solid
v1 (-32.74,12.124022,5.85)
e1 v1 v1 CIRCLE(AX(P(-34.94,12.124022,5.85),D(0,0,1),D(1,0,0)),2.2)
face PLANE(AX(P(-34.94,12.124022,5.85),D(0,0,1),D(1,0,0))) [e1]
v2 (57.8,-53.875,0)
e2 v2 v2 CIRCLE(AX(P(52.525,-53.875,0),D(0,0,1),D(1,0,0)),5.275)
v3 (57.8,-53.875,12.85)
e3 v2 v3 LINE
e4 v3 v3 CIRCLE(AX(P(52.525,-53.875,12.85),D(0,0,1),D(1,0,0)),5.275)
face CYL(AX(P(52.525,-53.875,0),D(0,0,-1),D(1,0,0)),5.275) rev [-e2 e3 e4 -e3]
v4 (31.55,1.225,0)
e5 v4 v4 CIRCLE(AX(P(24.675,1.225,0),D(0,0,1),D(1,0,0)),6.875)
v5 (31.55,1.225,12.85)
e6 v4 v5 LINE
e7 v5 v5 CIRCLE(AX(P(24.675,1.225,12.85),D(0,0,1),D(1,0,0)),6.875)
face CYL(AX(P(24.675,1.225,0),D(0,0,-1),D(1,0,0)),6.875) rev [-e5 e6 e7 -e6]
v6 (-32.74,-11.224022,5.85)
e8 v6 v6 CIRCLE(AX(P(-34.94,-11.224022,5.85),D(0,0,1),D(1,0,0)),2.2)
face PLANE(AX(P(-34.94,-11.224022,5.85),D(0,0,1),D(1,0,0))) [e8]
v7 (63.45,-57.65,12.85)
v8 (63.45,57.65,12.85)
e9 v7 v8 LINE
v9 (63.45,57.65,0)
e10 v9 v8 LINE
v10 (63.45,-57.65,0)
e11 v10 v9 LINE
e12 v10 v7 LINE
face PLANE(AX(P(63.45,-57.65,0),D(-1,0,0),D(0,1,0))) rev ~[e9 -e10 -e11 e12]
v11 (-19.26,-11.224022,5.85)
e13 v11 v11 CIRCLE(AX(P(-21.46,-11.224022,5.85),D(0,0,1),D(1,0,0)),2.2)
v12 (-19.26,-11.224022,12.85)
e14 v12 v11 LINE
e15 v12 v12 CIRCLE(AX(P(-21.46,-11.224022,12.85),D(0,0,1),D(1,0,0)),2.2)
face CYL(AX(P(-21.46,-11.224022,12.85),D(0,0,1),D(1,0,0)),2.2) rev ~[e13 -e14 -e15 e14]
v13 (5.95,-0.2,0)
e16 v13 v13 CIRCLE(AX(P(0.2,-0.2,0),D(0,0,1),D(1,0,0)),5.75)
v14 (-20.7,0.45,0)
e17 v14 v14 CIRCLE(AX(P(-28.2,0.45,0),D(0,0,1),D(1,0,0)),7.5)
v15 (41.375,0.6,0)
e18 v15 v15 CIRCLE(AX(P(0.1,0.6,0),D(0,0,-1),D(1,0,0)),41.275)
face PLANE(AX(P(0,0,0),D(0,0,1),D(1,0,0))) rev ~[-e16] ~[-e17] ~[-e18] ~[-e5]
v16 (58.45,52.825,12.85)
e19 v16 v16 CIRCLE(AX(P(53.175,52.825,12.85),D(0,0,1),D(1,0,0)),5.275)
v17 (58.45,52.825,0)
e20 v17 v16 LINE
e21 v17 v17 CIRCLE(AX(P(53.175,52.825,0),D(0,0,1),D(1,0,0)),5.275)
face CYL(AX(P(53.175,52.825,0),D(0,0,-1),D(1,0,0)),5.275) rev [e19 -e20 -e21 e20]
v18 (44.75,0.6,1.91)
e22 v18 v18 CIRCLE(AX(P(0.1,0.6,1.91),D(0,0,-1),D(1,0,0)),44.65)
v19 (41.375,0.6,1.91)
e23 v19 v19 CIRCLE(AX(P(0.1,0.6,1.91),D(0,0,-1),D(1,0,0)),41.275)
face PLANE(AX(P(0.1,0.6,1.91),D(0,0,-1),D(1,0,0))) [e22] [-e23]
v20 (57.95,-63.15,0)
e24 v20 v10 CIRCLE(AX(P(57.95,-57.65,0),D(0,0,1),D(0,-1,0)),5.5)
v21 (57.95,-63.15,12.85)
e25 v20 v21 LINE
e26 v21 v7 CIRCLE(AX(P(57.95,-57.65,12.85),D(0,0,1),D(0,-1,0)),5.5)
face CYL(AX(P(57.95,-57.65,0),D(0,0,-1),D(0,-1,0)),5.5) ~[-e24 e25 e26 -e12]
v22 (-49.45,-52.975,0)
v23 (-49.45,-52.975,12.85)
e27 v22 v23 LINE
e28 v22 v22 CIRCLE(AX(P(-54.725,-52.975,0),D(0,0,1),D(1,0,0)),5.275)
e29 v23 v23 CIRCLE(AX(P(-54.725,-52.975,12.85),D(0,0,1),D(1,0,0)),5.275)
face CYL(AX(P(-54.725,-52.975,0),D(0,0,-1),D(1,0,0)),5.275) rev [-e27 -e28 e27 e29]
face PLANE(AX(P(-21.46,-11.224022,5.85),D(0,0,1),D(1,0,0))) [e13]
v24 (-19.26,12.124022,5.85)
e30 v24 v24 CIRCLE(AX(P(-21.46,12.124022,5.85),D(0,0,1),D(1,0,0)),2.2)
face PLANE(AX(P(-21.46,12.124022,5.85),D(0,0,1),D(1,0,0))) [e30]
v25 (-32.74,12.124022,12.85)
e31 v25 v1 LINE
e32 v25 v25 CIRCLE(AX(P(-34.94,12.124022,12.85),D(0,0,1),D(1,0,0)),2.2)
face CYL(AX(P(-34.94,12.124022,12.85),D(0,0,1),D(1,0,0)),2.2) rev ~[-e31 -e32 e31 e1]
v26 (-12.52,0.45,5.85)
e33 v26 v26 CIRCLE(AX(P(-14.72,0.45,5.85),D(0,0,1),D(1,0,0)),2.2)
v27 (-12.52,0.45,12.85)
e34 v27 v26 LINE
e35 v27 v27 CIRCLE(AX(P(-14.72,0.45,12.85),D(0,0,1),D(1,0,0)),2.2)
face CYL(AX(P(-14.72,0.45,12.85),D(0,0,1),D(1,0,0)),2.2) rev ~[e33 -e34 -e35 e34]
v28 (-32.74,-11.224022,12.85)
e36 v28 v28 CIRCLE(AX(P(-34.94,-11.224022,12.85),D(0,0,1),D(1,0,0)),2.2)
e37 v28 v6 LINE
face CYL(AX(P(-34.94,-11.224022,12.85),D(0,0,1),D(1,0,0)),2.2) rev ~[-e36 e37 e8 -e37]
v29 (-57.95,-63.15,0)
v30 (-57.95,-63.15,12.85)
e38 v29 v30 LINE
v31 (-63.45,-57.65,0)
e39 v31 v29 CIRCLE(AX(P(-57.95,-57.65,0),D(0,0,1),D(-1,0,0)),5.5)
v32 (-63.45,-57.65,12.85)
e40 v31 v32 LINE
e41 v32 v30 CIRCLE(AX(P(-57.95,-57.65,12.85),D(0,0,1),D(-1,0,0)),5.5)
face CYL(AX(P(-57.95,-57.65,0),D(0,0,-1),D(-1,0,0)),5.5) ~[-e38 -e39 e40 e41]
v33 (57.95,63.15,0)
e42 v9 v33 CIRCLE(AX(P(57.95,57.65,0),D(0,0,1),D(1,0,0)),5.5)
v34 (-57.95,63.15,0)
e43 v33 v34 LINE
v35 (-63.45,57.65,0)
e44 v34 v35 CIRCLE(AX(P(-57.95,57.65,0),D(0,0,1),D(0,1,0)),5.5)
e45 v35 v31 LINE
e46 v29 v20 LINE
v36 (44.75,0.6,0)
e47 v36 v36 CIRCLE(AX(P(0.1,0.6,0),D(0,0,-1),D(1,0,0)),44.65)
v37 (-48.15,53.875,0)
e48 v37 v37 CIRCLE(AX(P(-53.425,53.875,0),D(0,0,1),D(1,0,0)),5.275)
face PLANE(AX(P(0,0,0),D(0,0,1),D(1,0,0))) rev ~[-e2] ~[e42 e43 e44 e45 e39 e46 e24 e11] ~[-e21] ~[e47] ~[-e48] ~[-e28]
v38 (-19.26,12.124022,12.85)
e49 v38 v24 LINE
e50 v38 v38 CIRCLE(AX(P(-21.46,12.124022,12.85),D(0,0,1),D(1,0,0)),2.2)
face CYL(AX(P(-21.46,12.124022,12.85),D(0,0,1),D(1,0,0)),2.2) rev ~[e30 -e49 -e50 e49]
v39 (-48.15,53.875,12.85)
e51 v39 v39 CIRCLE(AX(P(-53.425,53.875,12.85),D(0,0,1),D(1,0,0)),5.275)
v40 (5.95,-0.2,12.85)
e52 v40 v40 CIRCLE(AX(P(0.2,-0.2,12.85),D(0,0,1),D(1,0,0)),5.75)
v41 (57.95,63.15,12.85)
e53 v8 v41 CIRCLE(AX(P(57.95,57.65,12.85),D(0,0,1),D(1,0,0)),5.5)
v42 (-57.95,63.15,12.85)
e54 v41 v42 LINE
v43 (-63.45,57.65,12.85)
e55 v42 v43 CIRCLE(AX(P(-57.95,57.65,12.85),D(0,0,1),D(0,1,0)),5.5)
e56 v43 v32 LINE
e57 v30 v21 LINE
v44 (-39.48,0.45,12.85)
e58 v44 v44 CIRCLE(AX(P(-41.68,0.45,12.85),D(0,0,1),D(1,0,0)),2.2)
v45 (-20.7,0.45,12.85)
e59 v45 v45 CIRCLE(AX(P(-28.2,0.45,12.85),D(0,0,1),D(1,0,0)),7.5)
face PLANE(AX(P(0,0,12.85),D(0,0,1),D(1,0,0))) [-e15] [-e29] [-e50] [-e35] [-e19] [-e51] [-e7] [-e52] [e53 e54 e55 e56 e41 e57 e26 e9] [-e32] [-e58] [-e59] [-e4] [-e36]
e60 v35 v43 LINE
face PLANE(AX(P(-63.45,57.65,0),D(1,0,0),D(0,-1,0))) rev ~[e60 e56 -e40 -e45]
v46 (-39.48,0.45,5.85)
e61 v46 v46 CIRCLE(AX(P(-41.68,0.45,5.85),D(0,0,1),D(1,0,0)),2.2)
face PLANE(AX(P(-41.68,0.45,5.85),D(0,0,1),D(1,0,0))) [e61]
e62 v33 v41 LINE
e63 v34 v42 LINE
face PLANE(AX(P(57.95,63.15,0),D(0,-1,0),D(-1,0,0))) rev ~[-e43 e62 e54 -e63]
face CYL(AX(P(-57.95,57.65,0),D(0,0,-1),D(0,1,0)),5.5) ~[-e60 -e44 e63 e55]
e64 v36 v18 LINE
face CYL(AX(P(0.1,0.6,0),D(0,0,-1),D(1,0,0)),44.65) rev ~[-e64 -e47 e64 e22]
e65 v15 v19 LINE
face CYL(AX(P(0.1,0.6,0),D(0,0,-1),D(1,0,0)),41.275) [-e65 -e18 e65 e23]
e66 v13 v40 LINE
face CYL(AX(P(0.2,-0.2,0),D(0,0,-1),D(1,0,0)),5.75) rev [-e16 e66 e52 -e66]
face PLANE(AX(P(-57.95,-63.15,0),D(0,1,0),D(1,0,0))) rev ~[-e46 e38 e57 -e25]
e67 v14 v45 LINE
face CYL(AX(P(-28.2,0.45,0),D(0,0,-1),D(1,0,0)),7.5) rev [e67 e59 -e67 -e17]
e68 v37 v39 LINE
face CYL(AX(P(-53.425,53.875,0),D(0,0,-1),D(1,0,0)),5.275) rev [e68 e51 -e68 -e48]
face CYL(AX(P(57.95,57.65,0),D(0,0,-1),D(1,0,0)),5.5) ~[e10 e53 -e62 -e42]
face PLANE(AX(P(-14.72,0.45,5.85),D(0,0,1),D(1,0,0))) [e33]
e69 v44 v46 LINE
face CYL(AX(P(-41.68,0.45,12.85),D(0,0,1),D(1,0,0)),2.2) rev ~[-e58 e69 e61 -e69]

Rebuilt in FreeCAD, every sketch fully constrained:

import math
import FreeCAD as App
import Part
import Sketcher

V = App.Vector

doc = App.newDocument("Part")
body = doc.addObject("PartDesign::Body", "Body")

sketch1 = doc.addObject("Sketcher::SketchObject", "Sketch")
body.addObject(sketch1)
sketch1.AttachmentSupport = (doc.XY_Plane, [""])
sketch1.MapMode = "FlatFace"
sketch1.addGeometry(Part.ArcOfCircle(Part.Circle(V(57.95, 57.65, 0), V(0, 0, 1), 5.5), math.radians(0), math.radians(90)), False)
sketch1.addGeometry(Part.LineSegment(V(57.95, 63.15, 0), V(-57.95, 63.15, 0)), False)
sketch1.addGeometry(Part.ArcOfCircle(Part.Circle(V(-57.95, 57.65, 0), V(0, 0, 1), 5.5), math.radians(90), math.radians(180)), False)
sketch1.addGeometry(Part.LineSegment(V(-63.45, 57.65, 0), V(-63.45, -57.65, 0)), False)
sketch1.addGeometry(Part.ArcOfCircle(Part.Circle(V(-57.95, -57.65, 0), V(0, 0, 1), 5.5), math.radians(180), math.radians(270)), False)
sketch1.addGeometry(Part.LineSegment(V(-57.95, -63.15, 0), V(57.95, -63.15, 0)), False)
sketch1.addGeometry(Part.ArcOfCircle(Part.Circle(V(57.95, -57.65, 0), V(0, 0, 1), 5.5), math.radians(-90), math.radians(0)), False)
sketch1.addGeometry(Part.LineSegment(V(63.45, -57.65, 0), V(63.45, 57.65, 0)), False)
sketch1.addGeometry(Part.Circle(V(-54.725, -52.975, 0), V(0, 0, 1), 5.275), False)
sketch1.addGeometry(Part.Circle(V(52.525, -53.875, 0), V(0, 0, 1), 5.275), False)
sketch1.addGeometry(Part.Circle(V(0.2, -0.2, 0), V(0, 0, 1), 5.75), False)
sketch1.addGeometry(Part.Circle(V(-28.2, 0.45, 0), V(0, 0, 1), 7.5), False)
sketch1.addGeometry(Part.Circle(V(-53.425, 53.875, 0), V(0, 0, 1), 5.275), False)
sketch1.addGeometry(Part.Circle(V(24.675, 1.225, 0), V(0, 0, 1), 6.875), False)
sketch1.addGeometry(Part.Circle(V(53.175, 52.825, 0), V(0, 0, 1), 5.275), False)
sketch1.addConstraint(Sketcher.Constraint("Tangent", 0, 2, 1, 1))
sketch1.addConstraint(Sketcher.Constraint("Tangent", 1, 2, 2, 1))
sketch1.addConstraint(Sketcher.Constraint("Tangent", 2, 2, 3, 1))
sketch1.addConstraint(Sketcher.Constraint("Tangent", 3, 2, 4, 1))
sketch1.addConstraint(Sketcher.Constraint("Tangent", 4, 2, 5, 1))
sketch1.addConstraint(Sketcher.Constraint("Tangent", 5, 2, 6, 1))
sketch1.addConstraint(Sketcher.Constraint("Tangent", 6, 2, 7, 1))
sketch1.addConstraint(Sketcher.Constraint("Tangent", 7, 2, 0, 1))
sketch1.addConstraint(Sketcher.Constraint("Horizontal", 1))
sketch1.addConstraint(Sketcher.Constraint("Vertical", 3))
sketch1.addConstraint(Sketcher.Constraint("Horizontal", 5))
sketch1.addConstraint(Sketcher.Constraint("Vertical", 7))
sketch1.addConstraint(Sketcher.Constraint("Equal", 0, 2))
sketch1.addConstraint(Sketcher.Constraint("Equal", 2, 4))
sketch1.addConstraint(Sketcher.Constraint("Equal", 4, 6))
sketch1.addConstraint(Sketcher.Constraint("Equal", 8, 9))
sketch1.addConstraint(Sketcher.Constraint("Equal", 9, 12))
sketch1.addConstraint(Sketcher.Constraint("Equal", 12, 14))
sketch1.addConstraint(Sketcher.Constraint("Symmetric", 0, 3, 4, 3, -1, 1))
sketch1.addConstraint(Sketcher.Constraint("Diameter", 11, 15.0))
sketch1.addConstraint(Sketcher.Constraint("Diameter", 10, 11.5))
sketch1.addConstraint(Sketcher.Constraint("Radius", 0, 5.5))
sketch1.addConstraint(Sketcher.Constraint("Diameter", 8, 10.55))
sketch1.addConstraint(Sketcher.Constraint("Diameter", 13, 13.75))
sketch1.addConstraint(Sketcher.Constraint("DistanceX", 1, 2, 1, 1, 115.9))
sketch1.addConstraint(Sketcher.Constraint("DistanceY", 3, 2, 3, 1, 115.3))
sketch1.addConstraint(Sketcher.Constraint("DistanceX", -1, 1, 10, 3, 0.2))
sketch1.addConstraint(Sketcher.Constraint("DistanceY", 10, 3, -1, 1, 0.2))
sketch1.addConstraint(Sketcher.Constraint("DistanceX", 11, 3, -1, 1, 28.2))
sketch1.addConstraint(Sketcher.Constraint("DistanceY", 9, 3, 8, 3, 0.9))
sketch1.addConstraint(Sketcher.Constraint("DistanceY", 11, 3, 2, 3, 57.2))
sketch1.addConstraint(Sketcher.Constraint("DistanceX", 8, 3, 12, 3, 1.3))
sketch1.addConstraint(Sketcher.Constraint("DistanceY", 9, 3, 13, 3, 55.1))
sketch1.addConstraint(Sketcher.Constraint("DistanceX", 13, 3, 14, 3, 28.5))
sketch1.addConstraint(Sketcher.Constraint("DistanceY", 13, 3, 14, 3, 51.6))
sketch1.addConstraint(Sketcher.Constraint("DistanceX", 12, 3, 14, 3, 106.6))
sketch1.addConstraint(Sketcher.Constraint("DistanceX", 8, 3, 9, 3, 107.25))
sketch1.addConstraint(Sketcher.Constraint("DistanceY", 8, 3, 12, 3, 106.85))
sketch1.addConstraint(Sketcher.Constraint("DistanceX", 8, 3, -1, 1, 54.725))
sketch1.addConstraint(Sketcher.Constraint("DistanceY", 8, 3, -1, 1, 52.975))
pad1 = doc.addObject("PartDesign::Pad", "Pad")
body.addObject(pad1)
pad1.Profile = sketch1
pad1.Length = 12.85

sketch2 = doc.addObject("Sketcher::SketchObject", "Sketch001")
body.addObject(sketch2)
sketch2.AttachmentSupport = (doc.XY_Plane, [""])
sketch2.MapMode = "FlatFace"
sketch2.addGeometry(Part.Circle(V(0.1, 0.6, 0), V(0, 0, 1), 44.65), False)
sketch2.addGeometry(Part.Circle(V(0.1, 0.6, 0), V(0, 0, 1), 41.275), False)
sketch2.addConstraint(Sketcher.Constraint("Coincident", 1, 3, 0, 3))
sketch2.addConstraint(Sketcher.Constraint("Diameter", 0, 89.3))
sketch2.addConstraint(Sketcher.Constraint("Diameter", 1, 82.55))
sketch2.addConstraint(Sketcher.Constraint("DistanceX", -1, 1, 0, 3, 0.1))
sketch2.addConstraint(Sketcher.Constraint("DistanceY", -1, 1, 0, 3, 0.6))
pocket1 = doc.addObject("PartDesign::Pocket", "Pocket")
body.addObject(pocket1)
pocket1.Profile = sketch2
pocket1.Length = 1.91
pocket1.Reversed = True

sketch3 = doc.addObject("Sketcher::SketchObject", "Sketch002")
body.addObject(sketch3)
sketch3.AttachmentSupport = (doc.XY_Plane, [""])
sketch3.MapMode = "FlatFace"
sketch3.AttachmentOffset = App.Placement(V(0, 0, 12.85), App.Rotation())
sketch3.addGeometry(Part.Circle(V(-21.46, 12.124022, 0), V(0, 0, 1), 2.2), False)
sketch3.addGeometry(Part.Circle(V(-34.94, 12.124022, 0), V(0, 0, 1), 2.2), False)
sketch3.addGeometry(Part.Circle(V(-41.68, 0.45, 0), V(0, 0, 1), 2.2), False)
sketch3.addGeometry(Part.Circle(V(-34.94, -11.224022, 0), V(0, 0, 1), 2.2), False)
sketch3.addGeometry(Part.Circle(V(-21.46, -11.224022, 0), V(0, 0, 1), 2.2), False)
sketch3.addGeometry(Part.Circle(V(-14.72, 0.45, 0), V(0, 0, 1), 2.2), False)
sketch3.addConstraint(Sketcher.Constraint("Equal", 0, 1))
sketch3.addConstraint(Sketcher.Constraint("Equal", 1, 2))
sketch3.addConstraint(Sketcher.Constraint("Equal", 2, 3))
sketch3.addConstraint(Sketcher.Constraint("Equal", 3, 4))
sketch3.addConstraint(Sketcher.Constraint("Equal", 4, 5))
sketch3.addConstraint(Sketcher.Constraint("Horizontal", 0, 3, 1, 3))
sketch3.addConstraint(Sketcher.Constraint("Horizontal", 3, 3, 4, 3))
sketch3.addConstraint(Sketcher.Constraint("Horizontal", 2, 3, 5, 3))
sketch3.addConstraint(Sketcher.Constraint("Vertical", 1, 3, 3, 3))
sketch3.addConstraint(Sketcher.Constraint("Vertical", 0, 3, 4, 3))
sketch3.addConstraint(Sketcher.Constraint("Diameter", 0, 4.4))
sketch3.addConstraint(Sketcher.Constraint("DistanceX", 0, 3, -1, 1, 21.46))
sketch3.addConstraint(Sketcher.Constraint("DistanceX", 1, 3, -1, 1, 34.94))
sketch3.addConstraint(Sketcher.Constraint("DistanceX", 2, 3, -1, 1, 41.68))
sketch3.addConstraint(Sketcher.Constraint("DistanceY", -1, 1, 2, 3, 0.45))
sketch3.addConstraint(Sketcher.Constraint("DistanceX", 5, 3, -1, 1, 14.72))
sketch3.addConstraint(Sketcher.Constraint("DistanceY", -1, 1, 0, 3, 12.124022))
sketch3.addConstraint(Sketcher.Constraint("DistanceY", 3, 3, -1, 1, 11.224022))
pocket2 = doc.addObject("PartDesign::Pocket", "Pocket001")
body.addObject(pocket2)
pocket2.Profile = sketch3
pocket2.Length = 7

doc.recompute()
